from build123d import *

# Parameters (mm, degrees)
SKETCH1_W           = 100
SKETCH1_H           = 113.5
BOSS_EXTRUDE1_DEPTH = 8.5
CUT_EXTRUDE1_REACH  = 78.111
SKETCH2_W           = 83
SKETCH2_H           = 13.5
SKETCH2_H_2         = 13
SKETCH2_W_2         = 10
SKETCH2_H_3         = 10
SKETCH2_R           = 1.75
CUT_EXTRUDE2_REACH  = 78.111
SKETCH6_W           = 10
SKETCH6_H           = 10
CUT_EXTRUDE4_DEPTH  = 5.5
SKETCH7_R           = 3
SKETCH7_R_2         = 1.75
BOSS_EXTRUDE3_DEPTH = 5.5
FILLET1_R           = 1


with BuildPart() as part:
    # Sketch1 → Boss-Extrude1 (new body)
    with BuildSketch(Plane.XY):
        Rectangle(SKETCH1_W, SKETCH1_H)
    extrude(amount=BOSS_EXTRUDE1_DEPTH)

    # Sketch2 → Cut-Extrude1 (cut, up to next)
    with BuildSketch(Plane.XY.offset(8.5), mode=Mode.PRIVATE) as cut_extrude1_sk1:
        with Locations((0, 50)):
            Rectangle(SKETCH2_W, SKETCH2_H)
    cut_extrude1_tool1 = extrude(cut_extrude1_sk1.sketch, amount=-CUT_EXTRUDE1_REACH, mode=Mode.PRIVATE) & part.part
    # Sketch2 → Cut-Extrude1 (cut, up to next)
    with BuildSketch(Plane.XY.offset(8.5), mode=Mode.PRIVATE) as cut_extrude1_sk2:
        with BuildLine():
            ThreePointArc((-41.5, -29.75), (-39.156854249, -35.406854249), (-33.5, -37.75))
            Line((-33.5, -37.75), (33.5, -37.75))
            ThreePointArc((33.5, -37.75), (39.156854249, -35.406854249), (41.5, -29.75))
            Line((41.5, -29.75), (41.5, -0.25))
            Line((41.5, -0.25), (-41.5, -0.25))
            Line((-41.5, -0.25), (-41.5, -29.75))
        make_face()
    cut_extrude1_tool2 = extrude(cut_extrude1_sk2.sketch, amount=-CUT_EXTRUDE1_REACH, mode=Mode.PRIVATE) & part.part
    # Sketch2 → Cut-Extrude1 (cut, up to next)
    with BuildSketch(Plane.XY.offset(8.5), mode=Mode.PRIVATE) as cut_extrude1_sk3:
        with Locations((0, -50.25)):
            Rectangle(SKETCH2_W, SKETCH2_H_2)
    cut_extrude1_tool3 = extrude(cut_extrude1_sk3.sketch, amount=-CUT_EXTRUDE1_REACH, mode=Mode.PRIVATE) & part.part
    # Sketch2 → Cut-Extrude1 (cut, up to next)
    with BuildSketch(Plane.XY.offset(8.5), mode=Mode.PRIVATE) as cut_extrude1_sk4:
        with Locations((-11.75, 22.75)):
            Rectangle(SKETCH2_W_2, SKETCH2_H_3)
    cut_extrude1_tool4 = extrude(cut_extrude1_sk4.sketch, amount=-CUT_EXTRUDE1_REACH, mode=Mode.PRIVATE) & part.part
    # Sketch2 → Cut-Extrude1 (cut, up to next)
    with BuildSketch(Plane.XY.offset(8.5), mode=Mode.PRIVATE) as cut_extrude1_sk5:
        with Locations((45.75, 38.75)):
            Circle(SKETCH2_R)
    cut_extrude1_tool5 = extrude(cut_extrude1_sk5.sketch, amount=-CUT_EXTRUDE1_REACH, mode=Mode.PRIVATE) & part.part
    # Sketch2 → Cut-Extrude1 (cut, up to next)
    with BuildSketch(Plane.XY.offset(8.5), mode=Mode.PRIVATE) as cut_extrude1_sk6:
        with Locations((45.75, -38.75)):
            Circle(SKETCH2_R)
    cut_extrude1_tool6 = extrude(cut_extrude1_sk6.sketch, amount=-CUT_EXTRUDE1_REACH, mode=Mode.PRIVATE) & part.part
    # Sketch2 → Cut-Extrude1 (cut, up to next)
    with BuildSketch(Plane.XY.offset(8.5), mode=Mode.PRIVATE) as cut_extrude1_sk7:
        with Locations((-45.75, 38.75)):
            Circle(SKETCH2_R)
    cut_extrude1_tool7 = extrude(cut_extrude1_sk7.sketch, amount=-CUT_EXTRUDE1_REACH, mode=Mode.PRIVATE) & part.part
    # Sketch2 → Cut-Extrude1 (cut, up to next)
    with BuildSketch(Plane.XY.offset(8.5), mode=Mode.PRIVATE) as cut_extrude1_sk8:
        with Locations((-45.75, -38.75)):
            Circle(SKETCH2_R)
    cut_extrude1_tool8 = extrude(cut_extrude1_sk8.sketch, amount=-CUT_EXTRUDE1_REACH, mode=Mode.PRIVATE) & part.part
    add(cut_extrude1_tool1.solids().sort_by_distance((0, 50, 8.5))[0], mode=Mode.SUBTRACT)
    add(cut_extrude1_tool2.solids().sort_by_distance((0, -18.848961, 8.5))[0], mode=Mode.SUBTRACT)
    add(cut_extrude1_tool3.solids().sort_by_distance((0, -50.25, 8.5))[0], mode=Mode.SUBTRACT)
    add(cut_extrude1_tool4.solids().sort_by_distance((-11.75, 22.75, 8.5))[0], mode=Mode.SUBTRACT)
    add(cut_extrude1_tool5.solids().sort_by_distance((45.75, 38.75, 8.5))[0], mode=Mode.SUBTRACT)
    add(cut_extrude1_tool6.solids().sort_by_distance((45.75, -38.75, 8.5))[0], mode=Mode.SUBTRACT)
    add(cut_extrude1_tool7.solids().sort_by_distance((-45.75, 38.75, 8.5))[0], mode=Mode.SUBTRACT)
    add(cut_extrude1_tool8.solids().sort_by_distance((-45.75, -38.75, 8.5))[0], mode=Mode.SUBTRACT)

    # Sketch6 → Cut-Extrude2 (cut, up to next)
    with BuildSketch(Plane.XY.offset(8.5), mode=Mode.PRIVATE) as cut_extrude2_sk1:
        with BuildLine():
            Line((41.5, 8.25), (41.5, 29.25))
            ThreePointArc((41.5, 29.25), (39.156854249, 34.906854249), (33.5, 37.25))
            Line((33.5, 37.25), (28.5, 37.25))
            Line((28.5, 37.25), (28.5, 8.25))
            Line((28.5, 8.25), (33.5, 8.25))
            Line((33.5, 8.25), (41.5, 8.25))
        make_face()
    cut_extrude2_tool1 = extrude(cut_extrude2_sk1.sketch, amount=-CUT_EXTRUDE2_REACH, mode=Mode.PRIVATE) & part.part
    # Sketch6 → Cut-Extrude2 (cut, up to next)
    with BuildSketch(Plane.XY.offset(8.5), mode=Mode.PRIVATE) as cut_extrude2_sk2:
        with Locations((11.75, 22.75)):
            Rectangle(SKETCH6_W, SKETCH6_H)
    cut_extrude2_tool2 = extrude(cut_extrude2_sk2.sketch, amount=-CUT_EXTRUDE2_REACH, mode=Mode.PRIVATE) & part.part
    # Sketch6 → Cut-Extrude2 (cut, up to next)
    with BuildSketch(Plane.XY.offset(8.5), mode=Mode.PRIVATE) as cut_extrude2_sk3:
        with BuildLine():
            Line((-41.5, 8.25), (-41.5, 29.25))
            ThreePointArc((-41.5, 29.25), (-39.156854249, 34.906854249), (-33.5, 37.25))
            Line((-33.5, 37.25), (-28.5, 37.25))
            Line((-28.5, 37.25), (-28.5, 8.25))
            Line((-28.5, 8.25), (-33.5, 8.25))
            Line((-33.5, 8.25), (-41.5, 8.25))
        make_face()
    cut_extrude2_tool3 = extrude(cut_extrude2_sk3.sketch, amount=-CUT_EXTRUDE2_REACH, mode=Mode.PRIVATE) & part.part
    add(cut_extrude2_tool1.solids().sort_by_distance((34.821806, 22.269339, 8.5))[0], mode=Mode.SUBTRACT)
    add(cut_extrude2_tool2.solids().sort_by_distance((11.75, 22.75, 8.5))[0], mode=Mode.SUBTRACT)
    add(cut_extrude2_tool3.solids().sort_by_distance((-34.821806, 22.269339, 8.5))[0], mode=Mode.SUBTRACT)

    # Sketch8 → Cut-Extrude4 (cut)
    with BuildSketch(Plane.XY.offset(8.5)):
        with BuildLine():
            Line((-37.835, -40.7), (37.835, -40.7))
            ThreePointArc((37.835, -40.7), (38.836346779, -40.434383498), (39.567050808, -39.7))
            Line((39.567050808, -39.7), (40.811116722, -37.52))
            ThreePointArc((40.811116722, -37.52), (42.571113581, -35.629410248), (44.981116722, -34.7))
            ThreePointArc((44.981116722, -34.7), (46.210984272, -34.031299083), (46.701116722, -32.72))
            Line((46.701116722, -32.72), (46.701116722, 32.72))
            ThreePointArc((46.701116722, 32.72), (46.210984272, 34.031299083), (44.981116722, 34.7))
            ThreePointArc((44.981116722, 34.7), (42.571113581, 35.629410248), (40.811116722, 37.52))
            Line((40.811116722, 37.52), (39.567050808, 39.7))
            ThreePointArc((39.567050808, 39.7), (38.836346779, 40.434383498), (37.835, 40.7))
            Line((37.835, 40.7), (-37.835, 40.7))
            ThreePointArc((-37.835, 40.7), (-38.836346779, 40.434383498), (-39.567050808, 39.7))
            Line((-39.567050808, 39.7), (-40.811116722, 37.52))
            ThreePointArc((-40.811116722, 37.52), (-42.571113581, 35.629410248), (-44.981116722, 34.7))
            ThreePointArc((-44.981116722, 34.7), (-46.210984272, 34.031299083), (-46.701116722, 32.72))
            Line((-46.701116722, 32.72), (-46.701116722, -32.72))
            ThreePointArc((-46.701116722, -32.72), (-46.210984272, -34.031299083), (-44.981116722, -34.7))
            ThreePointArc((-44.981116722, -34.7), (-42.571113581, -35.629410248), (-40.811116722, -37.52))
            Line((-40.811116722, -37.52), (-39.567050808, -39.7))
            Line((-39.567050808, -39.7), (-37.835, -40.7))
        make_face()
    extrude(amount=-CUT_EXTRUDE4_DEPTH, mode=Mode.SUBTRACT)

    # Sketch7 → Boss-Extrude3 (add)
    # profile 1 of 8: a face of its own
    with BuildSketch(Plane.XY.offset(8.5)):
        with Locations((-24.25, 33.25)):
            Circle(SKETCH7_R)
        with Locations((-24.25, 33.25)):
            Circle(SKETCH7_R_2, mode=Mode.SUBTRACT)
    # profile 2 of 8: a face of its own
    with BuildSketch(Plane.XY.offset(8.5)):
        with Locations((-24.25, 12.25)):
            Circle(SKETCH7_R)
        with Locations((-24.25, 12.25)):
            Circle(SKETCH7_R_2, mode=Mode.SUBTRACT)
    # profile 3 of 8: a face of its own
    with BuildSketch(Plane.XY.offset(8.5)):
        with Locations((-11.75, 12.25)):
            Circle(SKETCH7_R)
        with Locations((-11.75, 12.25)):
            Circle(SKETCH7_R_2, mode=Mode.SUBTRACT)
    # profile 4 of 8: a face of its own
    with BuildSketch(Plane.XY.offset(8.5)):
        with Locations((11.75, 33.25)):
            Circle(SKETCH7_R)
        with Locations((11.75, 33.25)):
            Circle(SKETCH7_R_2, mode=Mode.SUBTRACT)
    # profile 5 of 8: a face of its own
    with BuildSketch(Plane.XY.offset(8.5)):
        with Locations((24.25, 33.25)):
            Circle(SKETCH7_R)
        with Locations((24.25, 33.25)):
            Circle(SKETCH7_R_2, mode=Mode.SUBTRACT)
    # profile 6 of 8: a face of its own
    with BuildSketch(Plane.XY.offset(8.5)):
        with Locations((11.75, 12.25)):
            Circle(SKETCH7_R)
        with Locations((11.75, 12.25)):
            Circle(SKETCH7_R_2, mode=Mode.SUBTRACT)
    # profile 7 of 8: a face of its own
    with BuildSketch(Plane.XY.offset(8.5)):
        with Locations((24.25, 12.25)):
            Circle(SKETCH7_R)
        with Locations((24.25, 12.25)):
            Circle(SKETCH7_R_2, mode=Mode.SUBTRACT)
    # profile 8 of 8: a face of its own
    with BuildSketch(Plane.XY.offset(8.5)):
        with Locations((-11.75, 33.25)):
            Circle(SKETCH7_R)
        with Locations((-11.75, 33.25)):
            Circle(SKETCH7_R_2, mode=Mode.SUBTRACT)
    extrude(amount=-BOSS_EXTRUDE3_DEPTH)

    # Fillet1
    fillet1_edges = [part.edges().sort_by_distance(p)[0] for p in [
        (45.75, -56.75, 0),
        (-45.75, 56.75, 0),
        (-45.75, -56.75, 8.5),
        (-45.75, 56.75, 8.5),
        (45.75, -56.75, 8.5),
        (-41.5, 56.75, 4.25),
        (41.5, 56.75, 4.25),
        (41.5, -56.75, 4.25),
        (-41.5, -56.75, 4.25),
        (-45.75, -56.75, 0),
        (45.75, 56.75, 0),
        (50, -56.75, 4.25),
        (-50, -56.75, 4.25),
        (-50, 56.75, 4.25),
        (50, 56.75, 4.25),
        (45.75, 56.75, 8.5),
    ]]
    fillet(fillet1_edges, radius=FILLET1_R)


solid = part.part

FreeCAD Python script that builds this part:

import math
import FreeCAD as App
import Part
import Sketcher
Q = App.Units.Quantity


def edges_at(feature, points):
    """Names of the edges that pass closest to the given points."""
    edges = feature.Shape.Edges
    near = lambda p: min(range(len(edges)), key=lambda i: edges[i].distToShape(Part.Vertex(*p))[0])
    return sorted({f"Edge{near(p) + 1}" for p in points})


def add_polygon(sketch, points):
    """Adds a closed chain of lines whose ends are joined by coincident constraints."""
    first, n = sketch.GeometryCount, len(points)
    for a, b in zip(points, points[1:] + points[:1]):
        sketch.addGeometry(Part.LineSegment(App.Vector(*a, 0), App.Vector(*b, 0)), False)
    for i in range(n):
        sketch.addConstraint(Sketcher.Constraint("Coincident", first + i, 2, first + (i + 1) % n, 1))

doc = App.newDocument("Part")
body = doc.addObject("PartDesign::Body", "Body")

sketch1 = body.newObject("Sketcher::SketchObject", "Sketch")
sketch1.AttachmentSupport = (doc.getObject("XY_Plane"), [""])
sketch1.MapMode = "FlatFace"
add_polygon(sketch1, [(-50, 56.75), (-50, -56.75), (50, -56.75), (50, 56.75)])
sketch1.addConstraint([
    Sketcher.Constraint("Vertical", 0),
    Sketcher.Constraint("Horizontal", 1),
    Sketcher.Constraint("Vertical", 2),
    Sketcher.Constraint("Horizontal", 3),
    Sketcher.Constraint("Symmetric", 0, 2, 2, 2, -1, 1),
    Sketcher.Constraint("DistanceX", 1, 1, 1, 2, 100.0),
    Sketcher.Constraint("DistanceY", 0, 2, 0, 1, 113.5),
])
pad1 = body.newObject("PartDesign::Pad", "Pad")
pad1.Profile = sketch1
pad1.Length = 8.5

sketch2 = body.newObject("Sketcher::SketchObject", "Sketch001")
sketch2.AttachmentSupport = (doc.getObject("XY_Plane"), [""])
sketch2.MapMode = "FlatFace"
sketch2.AttachmentOffset = App.Placement(App.Vector(0, 0, 8.5), App.Rotation())
add_polygon(sketch2, [(-41.5, 56.75), (-41.5, 43.25), (41.5, 43.25), (41.5, 56.75)])
sketch2.addConstraint([
    Sketcher.Constraint("Vertical", 0),
    Sketcher.Constraint("Horizontal", 1),
    Sketcher.Constraint("Vertical", 2),
    Sketcher.Constraint("Horizontal", 3),
    Sketcher.Constraint("DistanceX", 1, 1, 1, 2, 83.0),
    Sketcher.Constraint("DistanceY", 0, 2, 0, 1, 13.5),
    Sketcher.Constraint("DistanceX", 0, 2, -1, 1, 41.5),
    Sketcher.Constraint("DistanceY", -1, 1, 0, 2, 43.25),
])
pocket1 = body.newObject("PartDesign::Pocket", "Pocket")
pocket1.Profile = sketch2
pocket1.Type = "UpToFirst"

sketch3 = body.newObject("Sketcher::SketchObject", "Sketch002")
sketch3.AttachmentSupport = (doc.getObject("XY_Plane"), [""])
sketch3.MapMode = "FlatFace"
sketch3.AttachmentOffset = App.Placement(App.Vector(0, 0, 8.5), App.Rotation())
sketch3.addGeometry([
    Part.ArcOfCircle(Part.Circle(App.Vector(-33.5, -29.75, 0), App.Vector(0, 0, 1), 8), math.radians(-180), math.radians(-90)),
    Part.LineSegment(App.Vector(-33.5, -37.75, 0), App.Vector(33.5, -37.75, 0)),
    Part.ArcOfCircle(Part.Circle(App.Vector(33.5, -29.75, 0), App.Vector(0, 0, 1), 8), math.radians(-90), math.radians(0)),
    Part.LineSegment(App.Vector(41.5, -29.75, 0), App.Vector(41.5, -0.25, 0)),
    Part.LineSegment(App.Vector(41.5, -0.25, 0), App.Vector(-41.5, -0.25, 0)),
    Part.LineSegment(App.Vector(-41.5, -0.25, 0), App.Vector(-41.5, -29.75, 0)),
], False)
sketch3.addConstraint([
    Sketcher.Constraint("Tangent", 0, 2, 1, 1),
    Sketcher.Constraint("Tangent", 1, 2, 2, 1),
    Sketcher.Constraint("Tangent", 2, 2, 3, 1),
    Sketcher.Constraint("Coincident", 3, 2, 4, 1),
    Sketcher.Constraint("Coincident", 4, 2, 5, 1),
    Sketcher.Constraint("Tangent", 5, 2, 0, 1),
    Sketcher.Constraint("Horizontal", 1),
    Sketcher.Constraint("Vertical", 3),
    Sketcher.Constraint("Horizontal", 4),
    Sketcher.Constraint("Vertical", 5),
    Sketcher.Constraint("Equal", 0, 2),
    Sketcher.Constraint("Radius", 0, 8.0),
    Sketcher.Constraint("DistanceX", 1, 1, 1, 2, 67.0),
    Sketcher.Constraint("DistanceY", 3, 1, 3, 2, 29.5),
    Sketcher.Constraint("DistanceX", 0, 3, -1, 1, 33.5),
    Sketcher.Constraint("DistanceY", 0, 3, -1, 1, 29.75),
])
pocket2 = body.newObject("PartDesign::Pocket", "Pocket001")
pocket2.Profile = sketch3
pocket2.Type = "UpToFirst"

sketch4 = body.newObject("Sketcher::SketchObject", "Sketch003")
sketch4.AttachmentSupport = (doc.getObject("XY_Plane"), [""])
sketch4.MapMode = "FlatFace"
sketch4.AttachmentOffset = App.Placement(App.Vector(0, 0, 8.5), App.Rotation())
add_polygon(sketch4, [(-41.5, -43.75), (-41.5, -56.75), (41.5, -56.75), (41.5, -43.75)])
sketch4.addConstraint([
    Sketcher.Constraint("Vertical", 0),
    Sketcher.Constraint("Horizontal", 1),
    Sketcher.Constraint("Vertical", 2),
    Sketcher.Constraint("Horizontal", 3),
    Sketcher.Constraint("DistanceX", 1, 1, 1, 2, 83.0),
    Sketcher.Constraint("DistanceY", 0, 2, 0, 1, 13.0),
    Sketcher.Constraint("DistanceX", 0, 2, -1, 1, 41.5),
    Sketcher.Constraint("DistanceY", 0, 2, -1, 1, 56.75),
])
pocket3 = body.newObject("PartDesign::Pocket", "Pocket002")
pocket3.Profile = sketch4
pocket3.Type = "UpToFirst"

sketch5 = body.newObject("Sketcher::SketchObject", "Sketch004")
sketch5.AttachmentSupport = (doc.getObject("XY_Plane"), [""])
sketch5.MapMode = "FlatFace"
sketch5.AttachmentOffset = App.Placement(App.Vector(0, 0, 8.5), App.Rotation())
add_polygon(sketch5, [(-16.75, 27.75), (-16.75, 17.75), (-6.75, 17.75), (-6.75, 27.75)])
sketch5.addConstraint([
    Sketcher.Constraint("Vertical", 0),
    Sketcher.Constraint("Horizontal", 1),
    Sketcher.Constraint("Vertical", 2),
    Sketcher.Constraint("Horizontal", 3),
    Sketcher.Constraint("Equal", 3, 0),
    Sketcher.Constraint("DistanceX", 1, 1, 1, 2, 10.0),
    Sketcher.Constraint("DistanceX", 0, 2, -1, 1, 16.75),
    Sketcher.Constraint("DistanceY", -1, 1, 0, 2, 17.75),
])
pocket4 = body.newObject("PartDesign::Pocket", "Pocket003")
pocket4.Profile = sketch5
pocket4.Type = "UpToFirst"

sketch6 = body.newObject("Sketcher::SketchObject", "Sketch005")
sketch6.AttachmentSupport = (doc.getObject("XY_Plane"), [""])
sketch6.MapMode = "FlatFace"
sketch6.AttachmentOffset = App.Placement(App.Vector(0, 0, 8.5), App.Rotation())
sketch6.addGeometry(Part.Circle(App.Vector(45.75, 38.75, 0), App.Vector(0, 0, 1), 1.75), False)
sketch6.addConstraint([
    Sketcher.Constraint("Diameter", 0, 3.5),
    Sketcher.Constraint("DistanceX", -1, 1, 0, 3, 45.75),
    Sketcher.Constraint("DistanceY", -1, 1, 0, 3, 38.75),
])
pocket5 = body.newObject("PartDesign::Pocket", "Pocket004")
pocket5.Profile = sketch6
pocket5.Type = "UpToFirst"

sketch7 = body.newObject("Sketcher::SketchObject", "Sketch006")
sketch7.AttachmentSupport = (doc.getObject("XY_Plane"), [""])
sketch7.MapMode = "FlatFace"
sketch7.AttachmentOffset = App.Placement(App.Vector(0, 0, 8.5), App.Rotation())
sketch7.addGeometry(Part.Circle(App.Vector(45.75, -38.75, 0), App.Vector(0, 0, 1), 1.75), False)
sketch7.addConstraint([
    Sketcher.Constraint("Diameter", 0, 3.5),
    Sketcher.Constraint("DistanceX", -1, 1, 0, 3, 45.75),
    Sketcher.Constraint("DistanceY", 0, 3, -1, 1, 38.75),
])
pocket6 = body.newObject("PartDesign::Pocket", "Pocket005")
pocket6.Profile = sketch7
pocket6.Type = "UpToFirst"

sketch8 = body.newObject("Sketcher::SketchObject", "Sketch007")
sketch8.AttachmentSupport = (doc.getObject("XY_Plane"), [""])
sketch8.MapMode = "FlatFace"
sketch8.AttachmentOffset = App.Placement(App.Vector(0, 0, 8.5), App.Rotation())
sketch8.addGeometry(Part.Circle(App.Vector(-45.75, 38.75, 0), App.Vector(0, 0, 1), 1.75), False)
sketch8.addConstraint([
    Sketcher.Constraint("Diameter", 0, 3.5),
    Sketcher.Constraint("DistanceX", 0, 3, -1, 1, 45.75),
    Sketcher.Constraint("DistanceY", -1, 1, 0, 3, 38.75),
])
pocket7 = body.newObject("PartDesign::Pocket", "Pocket006")
pocket7.Profile = sketch8
pocket7.Type = "UpToFirst"

sketch9 = body.newObject("Sketcher::SketchObject", "Sketch008")
sketch9.AttachmentSupport = (doc.getObject("XY_Plane"), [""])
sketch9.MapMode = "FlatFace"
sketch9.AttachmentOffset = App.Placement(App.Vector(0, 0, 8.5), App.Rotation())
sketch9.addGeometry(Part.Circle(App.Vector(-45.75, -38.75, 0), App.Vector(0, 0, 1), 1.75), False)
sketch9.addConstraint([
    Sketcher.Constraint("Diameter", 0, 3.5),
    Sketcher.Constraint("DistanceX", 0, 3, -1, 1, 45.75),
    Sketcher.Constraint("DistanceY", 0, 3, -1, 1, 38.75),
])
pocket8 = body.newObject("PartDesign::Pocket", "Pocket007")
pocket8.Profile = sketch9
pocket8.Type = "UpToFirst"

sketch10 = body.newObject("Sketcher::SketchObject", "Sketch009")
sketch10.AttachmentSupport = (doc.getObject("XY_Plane"), [""])
sketch10.MapMode = "FlatFace"
sketch10.AttachmentOffset = App.Placement(App.Vector(0, 0, 8.5), App.Rotation())
sketch10.addGeometry([
    Part.LineSegment(App.Vector(41.5, 8.25, 0), App.Vector(41.5, 29.25, 0)),
    Part.ArcOfCircle(Part.Circle(App.Vector(33.5, 29.25, 0), App.Vector(0, 0, 1), 8), math.radians(0), math.radians(90)),
    Part.LineSegment(App.Vector(33.5, 37.25, 0), App.Vector(28.5, 37.25, 0)),
    Part.LineSegment(App.Vector(28.5, 37.25, 0), App.Vector(28.5, 8.25, 0)),
    Part.LineSegment(App.Vector(28.5, 8.25, 0), App.Vector(41.5, 8.25, 0)),
], False)
sketch10.addConstraint([
    Sketcher.Constraint("Tangent", 0, 2, 1, 1),
    Sketcher.Constraint("Tangent", 1, 2, 2, 1),
    Sketcher.Constraint("Coincident", 2, 2, 3, 1),
    Sketcher.Constraint("Coincident", 3, 2, 4, 1),
    Sketcher.Constraint("Coincident", 4, 2, 0, 1),
    Sketcher.Constraint("Vertical", 0),
    Sketcher.Constraint("Horizontal", 2),
    Sketcher.Constraint("Vertical", 3),
    Sketcher.Constraint("Horizontal", 4),
    Sketcher.Constraint("Radius", 1, 8.0),
    Sketcher.Constraint("DistanceX", 2, 2, 2, 1, 5.0),
    Sketcher.Constraint("DistanceY", 0, 1, 0, 2, 21.0),
    Sketcher.Constraint("DistanceX", -1, 1, 1, 3, 33.5),
    Sketcher.Constraint("DistanceY", -1, 1, 1, 3, 29.25),
])
pocket9 = body.newObject("PartDesign::Pocket", "Pocket008")
pocket9.Profile = sketch10
pocket9.Type = "UpToFirst"

sketch11 = body.newObject("Sketcher::SketchObject", "Sketch010")
sketch11.AttachmentSupport = (doc.getObject("XY_Plane"), [""])
sketch11.MapMode = "FlatFace"
sketch11.AttachmentOffset = App.Placement(App.Vector(0, 0, 8.5), App.Rotation())
add_polygon(sketch11, [(6.75, 27.75), (6.75, 17.75), (16.75, 17.75), (16.75, 27.75)])
sketch11.addConstraint([
    Sketcher.Constraint("Vertical", 0),
    Sketcher.Constraint("Horizontal", 1),
    Sketcher.Constraint("Vertical", 2),
    Sketcher.Constraint("Horizontal", 3),
    Sketcher.Constraint("Equal", 3, 0),
    Sketcher.Constraint("DistanceX", 1, 1, 1, 2, 10.0),
    Sketcher.Constraint("DistanceX", -1, 1, 0, 2, 6.75),
    Sketcher.Constraint("DistanceY", -1, 1, 0, 2, 17.75),
])
pocket10 = body.newObject("PartDesign::Pocket", "Pocket009")
pocket10.Profile = sketch11
pocket10.Type = "UpToFirst"

sketch12 = body.newObject("Sketcher::SketchObject", "Sketch011")
sketch12.AttachmentSupport = (doc.getObject("XY_Plane"), [""])
sketch12.MapMode = "FlatFace"
sketch12.AttachmentOffset = App.Placement(App.Vector(0, 0, 8.5), App.Rotation())
sketch12.addGeometry([
    Part.LineSegment(App.Vector(-41.5, 29.25, 0), App.Vector(-41.5, 8.25, 0)),
    Part.LineSegment(App.Vector(-41.5, 8.25, 0), App.Vector(-28.5, 8.25, 0)),
    Part.LineSegment(App.Vector(-28.5, 8.25, 0), App.Vector(-28.5, 37.25, 0)),
    Part.LineSegment(App.Vector(-28.5, 37.25, 0), App.Vector(-33.5, 37.25, 0)),
    Part.ArcOfCircle(Part.Circle(App.Vector(-33.5, 29.25, 0), App.Vector(0, 0, 1), 8), math.radians(90), math.radians(180)),
], False)
sketch12.addConstraint([
    Sketcher.Constraint("Coincident", 0, 2, 1, 1),
    Sketcher.Constraint("Coincident", 1, 2, 2, 1),
    Sketcher.Constraint("Coincident", 2, 2, 3, 1),
    Sketcher.Constraint("Tangent", 3, 2, 4, 1),
    Sketcher.Constraint("Tangent", 4, 2, 0, 1),
    Sketcher.Constraint("Vertical", 0),
    Sketcher.Constraint("Horizontal", 1),
    Sketcher.Constraint("Vertical", 2),
    Sketcher.Constraint("Horizontal", 3),
    Sketcher.Constraint("Radius", 4, 8.0),
    Sketcher.Constraint("DistanceX", 1, 1, 1, 2, 13.0),
    Sketcher.Constraint("DistanceY", 0, 2, 0, 1, 21.0),
    Sketcher.Constraint("DistanceX", 4, 3, -1, 1, 33.5),
    Sketcher.Constraint("DistanceY", -1, 1, 4, 3, 29.25),
])
pocket11 = body.newObject("PartDesign::Pocket", "Pocket010")
pocket11.Profile = sketch12
pocket11.Type = "UpToFirst"

sketch13 = body.newObject("Sketcher::SketchObject", "Sketch012")
sketch13.AttachmentSupport = (doc.getObject("XY_Plane"), [""])
sketch13.MapMode = "FlatFace"
sketch13.AttachmentOffset = App.Placement(App.Vector(0, 0, 8.5), App.Rotation())
sketch13.addGeometry([
    Part.LineSegment(App.Vector(-37.835, -40.7, 0), App.Vector(37.835, -40.7, 0)),
    Part.ArcOfCircle(Part.Circle(App.Vector(37.844959, -38.71725, 0), App.Vector(0, 0, 1), 1.982775), math.radians(-90.287788), math.radians(-29.712212)),
    Part.LineSegment(App.Vector(39.567051, -39.7, 0), App.Vector(40.811117, -37.52, 0)),
    Part.ArcOfCircle(Part.Circle(App.Vector(45.792201, -40.392508, 0), App.Vector(0, 0, 1), 5.75), math.radians(98.10908), math.radians(150.028674)),
    Part.ArcOfCircle(Part.Circle(App.Vector(44.701117, -32.719697, 0), App.Vector(0, 0, 1), 2), math.radians(-81.952154), math.radians(-0.008681)),
    Part.LineSegment(App.Vector(46.701117, -32.72, 0), App.Vector(46.701117, 32.72, 0)),
    Part.ArcOfCircle(Part.Circle(App.Vector(44.701117, 32.719697, 0), App.Vector(0, 0, 1), 2), math.radians(0.008681), math.radians(81.952154)),
    Part.ArcOfCircle(Part.Circle(App.Vector(45.792201, 40.392508, 0), App.Vector(0, 0, 1), 5.75), math.radians(-150.028674), math.radians(-98.10908)),
    Part.LineSegment(App.Vector(40.811117, 37.52, 0), App.Vector(39.567051, 39.7, 0)),
    Part.ArcOfCircle(Part.Circle(App.Vector(37.844959, 38.71725, 0), App.Vector(0, 0, 1), 1.982775), math.radians(29.712212), math.radians(90.287788)),
    Part.LineSegment(App.Vector(37.835, 40.7, 0), App.Vector(-37.835, 40.7, 0)),
    Part.ArcOfCircle(Part.Circle(App.Vector(-37.844959, 38.71725, 0), App.Vector(0, 0, 1), 1.982775), math.radians(89.712212), math.radians(150.287788)),
    Part.LineSegment(App.Vector(-39.567051, 39.7, 0), App.Vector(-40.811117, 37.52, 0)),
    Part.ArcOfCircle(Part.Circle(App.Vector(-45.792201, 40.392508, 0), App.Vector(0, 0, 1), 5.75), math.radians(-81.89092), math.radians(-29.971326)),
    Part.ArcOfCircle(Part.Circle(App.Vector(-44.701117, 32.719697, 0), App.Vector(0, 0, 1), 2), math.radians(98.047846), math.radians(179.991319)),
    Part.LineSegment(App.Vector(-46.701117, 32.72, 0), App.Vector(-46.701117, -32.72, 0)),
    Part.ArcOfCircle(Part.Circle(App.Vector(-44.701117, -32.719697, 0), App.Vector(0, 0, 1), 2), math.radians(-179.991319), math.radians(-98.047846)),
    Part.ArcOfCircle(Part.Circle(App.Vector(-45.792201, -40.392508, 0), App.Vector(0, 0, 1), 5.75), math.radians(29.971326), math.radians(81.89092)),
    Part.LineSegment(App.Vector(-40.811117, -37.52, 0), App.Vector(-39.567051, -39.7, 0)),
    Part.LineSegment(App.Vector(-39.567051, -39.7, 0), App.Vector(-37.835, -40.7, 0)),
], False)
sketch13.addConstraint([
    Sketcher.Constraint("Coincident", 0, 2, 1, 1),
    Sketcher.Constraint("Tangent", 1, 2, 2, 1),
    Sketcher.Constraint("Coincident", 2, 2, 3, 2),
    Sketcher.Constraint("Coincident", 3, 1, 4, 1),
    Sketcher.Constraint("Coincident", 4, 2, 5, 1),
    Sketcher.Constraint("Coincident", 5, 2, 6, 1),
    Sketcher.Constraint("Coincident", 6, 2, 7, 2),
    Sketcher.Constraint("Coincident", 7, 1, 8, 1),
    Sketcher.Constraint("Tangent", 8, 2, 9, 1),
    Sketcher.Constraint("Coincident", 9, 2, 10, 1),
    Sketcher.Constraint("Coincident", 10, 2, 11, 1),
    Sketcher.Constraint("Tangent", 11, 2, 12, 1),
    Sketcher.Constraint("Coincident", 12, 2, 13, 2),
    Sketcher.Constraint("Coincident", 13, 1, 14, 1),
    Sketcher.Constraint("Coincident", 14, 2, 15, 1),
    Sketcher.Constraint("Coincident", 15, 2, 16, 1),
    Sketcher.Constraint("Coincident", 16, 2, 17, 2),
    Sketcher.Constraint("Coincident", 17, 1, 18, 1),
    Sketcher.Constraint("Coincident", 18, 2, 19, 1),
    Sketcher.Constraint("Coincident", 19, 2, 0, 1),
    Sketcher.Constraint("Horizontal", 0),
    Sketcher.Constraint("Vertical", 5),
    Sketcher.Constraint("Horizontal", 10),
    Sketcher.Constraint("Vertical", 15),
    Sketcher.Constraint("Equal", 4, 6),
    Sketcher.Constraint("Equal", 3, 7),
    Sketcher.Constraint("Equal", 1, 9),
    Sketcher.Constraint("Equal", 9, 11),
    Sketcher.Constraint("Equal", 7, 13),
    Sketcher.Constraint("Equal", 6, 14),
    Sketcher.Constraint("Equal", 14, 16),
    Sketcher.Constraint("Equal", 13, 17),
    Sketcher.Constraint("Symmetric", 1, 3, 11, 3, -1, 1),
    Sketcher.Constraint("Symmetric", 3, 3, 13, 3, -1, 1),
    Sketcher.Constraint("Symmetric", 4, 3, 14, 3, -1, 1),
    Sketcher.Constraint("Symmetric", 7, 3, 17, 3, -1, 1),
    Sketcher.Constraint("Symmetric", 8, 2, 18, 2, -1, 1),
    Sketcher.Constraint("Symmetric", 9, 2, 19, 2, -1, 1),
    Sketcher.Constraint("Symmetric", 9, 3, 11, 3, -2),
    Sketcher.Constraint("Symmetric", 7, 3, 13, 3, -2),
    Sketcher.Constraint("Parallel", 2, 12),
    Sketcher.Constraint("Parallel", 8, 18),
    Sketcher.Constraint("Horizontal", 7, 1, 12, 2),
    Sketcher.Constraint("Horizontal", 6, 2, 13, 1),
    Sketcher.Constraint("Horizontal", 5, 2, 14, 2),
    Sketcher.Constraint("Horizontal", 4, 2, 15, 2),
    Sketcher.Constraint("Horizontal", 3, 1, 16, 2),
    Sketcher.Constraint("Radius", 4, 2.0),
    Sketcher.Constraint("Angle", 19, Q("-30 deg")),
    Sketcher.Constraint("Radius", 3, 5.75),
    Sketcher.Constraint("Distance", 19, 2.0),
    Sketcher.Constraint("DistanceY", 1, 2, 3, 1, 5.0),
    Sketcher.Constraint("DistanceX", 0, 1, 0, 2, 75.67),
    Sketcher.Constraint("DistanceY", 5, 1, 5, 2, 65.44),
    Sketcher.Constraint("DistanceY", 0, 2, -1, 1, 40.7),
    Sketcher.Constraint("DistanceY", 2, 2, 4, 2, 4.8),
    Sketcher.Constraint("DistanceY", 5, 2, 7, 1, 4.8),
    Sketcher.Constraint("Distance", 2, 2.51),
    Sketcher.Constraint("DistanceX", 2, 2, 4, 3, 3.89),
    Sketcher.Constraint("DistanceX", 4, 3, 3, 1, 0.28),
])
pocket12 = body.newObject("PartDesign::Pocket", "Pocket011")
pocket12.Profile = sketch13
pocket12.Length = 5.5

sketch14 = body.newObject("Sketcher::SketchObject", "Sketch013")
sketch14.AttachmentSupport = (doc.getObject("XY_Plane"), [""])
sketch14.MapMode = "FlatFace"
sketch14.AttachmentOffset = App.Placement(App.Vector(0, 0, 8.5), App.Rotation())
sketch14.addGeometry([
    Part.Circle(App.Vector(-24.25, 33.25, 0), App.Vector(0, 0, 1), 3),
    Part.Circle(App.Vector(-24.25, 33.25, 0), App.Vector(0, 0, 1), 1.75),
    Part.Circle(App.Vector(-24.25, 12.25, 0), App.Vector(0, 0, 1), 3),
    Part.Circle(App.Vector(-24.25, 12.25, 0), App.Vector(0, 0, 1), 1.75),
    Part.Circle(App.Vector(-11.75, 12.25, 0), App.Vector(0, 0, 1), 3),
    Part.Circle(App.Vector(-11.75, 12.25, 0), App.Vector(0, 0, 1), 1.75),
    Part.Circle(App.Vector(11.75, 33.25, 0), App.Vector(0, 0, 1), 3),
    Part.Circle(App.Vector(11.75, 33.25, 0), App.Vector(0, 0, 1), 1.75),
    Part.Circle(App.Vector(24.25, 33.25, 0), App.Vector(0, 0, 1), 3),
    Part.Circle(App.Vector(24.25, 33.25, 0), App.Vector(0, 0, 1), 1.75),
    Part.Circle(App.Vector(11.75, 12.25, 0), App.Vector(0, 0, 1), 3),
    Part.Circle(App.Vector(11.75, 12.25, 0), App.Vector(0, 0, 1), 1.75),
    Part.Circle(App.Vector(24.25, 12.25, 0), App.Vector(0, 0, 1), 3),
    Part.Circle(App.Vector(24.25, 12.25, 0), App.Vector(0, 0, 1), 1.75),
    Part.Circle(App.Vector(-11.75, 33.25, 0), App.Vector(0, 0, 1), 3),
    Part.Circle(App.Vector(-11.75, 33.25, 0), App.Vector(0, 0, 1), 1.75),
], False)
sketch14.addConstraint([
    Sketcher.Constraint("Coincident", 1, 3, 0, 3),
    Sketcher.Constraint("Coincident", 3, 3, 2, 3),
    Sketcher.Constraint("Coincident", 5, 3, 4, 3),
    Sketcher.Constraint("Coincident", 7, 3, 6, 3),
    Sketcher.Constraint("Coincident", 9, 3, 8, 3),
    Sketcher.Constraint("Coincident", 11, 3, 10, 3),
    Sketcher.Constraint("Coincident", 13, 3, 12, 3),
    Sketcher.Constraint("Coincident", 15, 3, 14, 3),
    Sketcher.Constraint("Equal", 0, 2),
    Sketcher.Constraint("Equal", 1, 3),
    Sketcher.Constraint("Equal", 2, 4),
    Sketcher.Constraint("Equal", 3, 5),
    Sketcher.Constraint("Equal", 4, 6),
    Sketcher.Constraint("Equal", 5, 7),
    Sketcher.Constraint("Equal", 6, 8),
    Sketcher.Constraint("Equal", 7, 9),
    Sketcher.Constraint("Equal", 8, 10),
    Sketcher.Constraint("Equal", 9, 11),
    Sketcher.Constraint("Equal", 10, 12),
    Sketcher.Constraint("Equal", 11, 13),
    Sketcher.Constraint("Equal", 12, 14),
    Sketcher.Constraint("Equal", 13, 15),
    Sketcher.Constraint("Symmetric", 0, 3, 8, 3, -2),
    Sketcher.Constraint("Symmetric", 4, 3, 10, 3, -2),
    Sketcher.Constraint("Symmetric", 2, 3, 12, 3, -2),
    Sketcher.Constraint("Symmetric", 6, 3, 14, 3, -2),
    Sketcher.Constraint("Horizontal", 3, 3, 4, 3),
    Sketcher.Constraint("Horizontal", 1, 3, 6, 3),
    Sketcher.Constraint("Vertical", 1, 3, 2, 3),
    Sketcher.Constraint("Vertical", 7, 3, 10, 3),
    Sketcher.Constraint("Diameter", 0, 6.0),
    Sketcher.Constraint("Diameter", 1, 3.5),
    Sketcher.Constraint("DistanceY", 2, 3, 0, 3, 21.0),
    Sketcher.Constraint("DistanceX", 0, 3, 6, 3, 36.0),
    Sketcher.Constraint("DistanceX", 2, 3, 4, 3, 12.5),
    Sketcher.Constraint("DistanceY", -1, 1, 0, 3, 33.25),
])
pad2 = body.newObject("PartDesign::Pad", "Pad001")
pad2.Profile = sketch14
pad2.Length = 5.5
pad2.Reversed = True
doc.recompute()

fillet = body.newObject("PartDesign::Fillet", "Fillet")
fillet.Base = (pad2, edges_at(pad2, [
    (45.75, -56.75, 0),
    (-45.75, 56.75, 0),
    (-45.75, -56.75, 8.5),
    (-45.75, 56.75, 8.5),
    (45.75, -56.75, 8.5),
    (-41.5, 56.75, 4.25),
    (41.5, 56.75, 4.25),
    (41.5, -56.75, 4.25),
    (-41.5, -56.75, 4.25),
    (-45.75, -56.75, 0),
    (45.75, 56.75, 0),
    (50, -56.75, 4.25),
    (-50, -56.75, 4.25),
    (-50, 56.75, 4.25),
    (50, 56.75, 4.25),
    (45.75, 56.75, 8.5),
]))
fillet.Radius = 1

doc.recompute()
